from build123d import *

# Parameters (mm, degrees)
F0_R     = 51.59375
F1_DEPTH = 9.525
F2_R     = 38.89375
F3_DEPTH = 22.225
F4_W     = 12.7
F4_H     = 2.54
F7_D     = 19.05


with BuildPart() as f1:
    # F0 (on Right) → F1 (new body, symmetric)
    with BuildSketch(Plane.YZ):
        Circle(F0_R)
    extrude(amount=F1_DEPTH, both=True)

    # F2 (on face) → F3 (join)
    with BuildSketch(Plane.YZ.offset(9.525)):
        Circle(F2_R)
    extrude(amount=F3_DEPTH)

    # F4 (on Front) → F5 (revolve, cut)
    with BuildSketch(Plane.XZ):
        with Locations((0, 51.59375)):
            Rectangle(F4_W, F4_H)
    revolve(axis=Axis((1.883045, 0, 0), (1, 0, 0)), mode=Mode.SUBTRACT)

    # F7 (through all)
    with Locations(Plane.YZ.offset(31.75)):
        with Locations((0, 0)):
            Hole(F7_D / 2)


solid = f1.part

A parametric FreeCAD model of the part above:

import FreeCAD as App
import Part
import Sketcher
Q = App.Units.Quantity


def add_polygon(sketch, points):
    """Adds a closed chain of lines whose ends are joined by coincident constraints."""
    first, n = sketch.GeometryCount, len(points)
    for a, b in zip(points, points[1:] + points[:1]):
        sketch.addGeometry(Part.LineSegment(App.Vector(*a, 0), App.Vector(*b, 0)), False)
    for i in range(n):
        sketch.addConstraint(Sketcher.Constraint("Coincident", first + i, 2, first + (i + 1) % n, 1))

doc = App.newDocument("Part")
body = doc.addObject("PartDesign::Body", "Body")

# Sketch on YZ plane
sketch1 = body.newObject("Sketcher::SketchObject", "Sketch")
sketch1.AttachmentSupport = (doc.getObject("YZ_Plane"), [""])
sketch1.MapMode = "FlatFace"
sketch1.addGeometry(Part.Circle(App.Vector(0, 0, 0), App.Vector(0, 0, 1), 52), False)
sketch1.addConstraint(Sketcher.Constraint("Coincident", 0, 3, -1, 1))
sketch1.addConstraint(Sketcher.Constraint("Diameter", 0, Q("4.0625 in")))
pad1 = body.newObject("PartDesign::Pad", "Pad")
pad1.Profile = sketch1
pad1.Length = Q("0.75 in")
pad1.Midplane = True

# Sketch on YZ plane
sketch2 = body.newObject("Sketcher::SketchObject", "Sketch001")
sketch2.AttachmentSupport = (doc.getObject("YZ_Plane"), [""])
sketch2.MapMode = "FlatFace"
sketch2.AttachmentOffset = App.Placement(App.Vector(0, 0, 0.375 * 25.4), App.Rotation())
sketch2.addGeometry(Part.Circle(App.Vector(0, 0, 0), App.Vector(0, 0, 1), 39), False)
sketch2.addConstraint(Sketcher.Constraint("Coincident", 0, 3, -1, 1))
sketch2.addConstraint(Sketcher.Constraint("Diameter", 0, Q("3.0625 in")))
pad2 = body.newObject("PartDesign::Pad", "Pad001")
pad2.Profile = sketch2
pad2.Length = Q("0.875 in")

# Sketch on XZ plane
sketch3 = body.newObject("Sketcher::SketchObject", "Sketch002")
sketch3.AttachmentSupport = (doc.getObject("XZ_Plane"), [""])
sketch3.MapMode = "FlatFace"
add_polygon(sketch3, [(-6.3, 52.9), (-6.3, 50.3), (6.3, 50.3), (6.3, 52.9)])  # lines 0-3
sketch3.addConstraint(Sketcher.Constraint("Vertical", 0))
sketch3.addConstraint(Sketcher.Constraint("Horizontal", 1))
sketch3.addConstraint(Sketcher.Constraint("Vertical", 2))
sketch3.addConstraint(Sketcher.Constraint("Horizontal", 3))
sketch3.addConstraint(Sketcher.Constraint("DistanceX", 1, 1, 1, 2, Q("0.5 in")))
sketch3.addConstraint(Sketcher.Constraint("DistanceY", 0, 2, 0, 1, Q("0.1 in")))
sketch3.addConstraint(Sketcher.Constraint("DistanceX", 0, 2, -1, 1, Q("0.25 in")))
sketch3.addConstraint(Sketcher.Constraint("DistanceY", -1, 1, 0, 2, 50.32375))
groove = body.newObject("PartDesign::Groove", "Groove")
groove.Profile = sketch3
groove.ReferenceAxis = (sketch3, ["H_Axis"])
groove.Angle = 360

# Sketch on YZ plane
sketch4 = body.newObject("Sketcher::SketchObject", "Sketch003")
sketch4.AttachmentSupport = (doc.getObject("YZ_Plane"), [""])
sketch4.MapMode = "FlatFace"
sketch4.AttachmentOffset = App.Placement(App.Vector(0, 0, 1.25 * 25.4), App.Rotation())
sketch4.addGeometry(Part.Circle(App.Vector(0, 0, 0), App.Vector(0, 0, 1), 10), False)
sketch4.addConstraint(Sketcher.Constraint("Coincident", 0, 3, -1, 1))
sketch4.addConstraint(Sketcher.Constraint("Diameter", 0, Q("0.75 in")))
doc.recompute()
hole = body.newObject("PartDesign::Hole", "Hole")
hole.Profile = sketch4
hole.ThreadType = "None"
hole.Diameter = Q("0.75 in")
hole.DepthType = "ThroughAll"

doc.recompute()
